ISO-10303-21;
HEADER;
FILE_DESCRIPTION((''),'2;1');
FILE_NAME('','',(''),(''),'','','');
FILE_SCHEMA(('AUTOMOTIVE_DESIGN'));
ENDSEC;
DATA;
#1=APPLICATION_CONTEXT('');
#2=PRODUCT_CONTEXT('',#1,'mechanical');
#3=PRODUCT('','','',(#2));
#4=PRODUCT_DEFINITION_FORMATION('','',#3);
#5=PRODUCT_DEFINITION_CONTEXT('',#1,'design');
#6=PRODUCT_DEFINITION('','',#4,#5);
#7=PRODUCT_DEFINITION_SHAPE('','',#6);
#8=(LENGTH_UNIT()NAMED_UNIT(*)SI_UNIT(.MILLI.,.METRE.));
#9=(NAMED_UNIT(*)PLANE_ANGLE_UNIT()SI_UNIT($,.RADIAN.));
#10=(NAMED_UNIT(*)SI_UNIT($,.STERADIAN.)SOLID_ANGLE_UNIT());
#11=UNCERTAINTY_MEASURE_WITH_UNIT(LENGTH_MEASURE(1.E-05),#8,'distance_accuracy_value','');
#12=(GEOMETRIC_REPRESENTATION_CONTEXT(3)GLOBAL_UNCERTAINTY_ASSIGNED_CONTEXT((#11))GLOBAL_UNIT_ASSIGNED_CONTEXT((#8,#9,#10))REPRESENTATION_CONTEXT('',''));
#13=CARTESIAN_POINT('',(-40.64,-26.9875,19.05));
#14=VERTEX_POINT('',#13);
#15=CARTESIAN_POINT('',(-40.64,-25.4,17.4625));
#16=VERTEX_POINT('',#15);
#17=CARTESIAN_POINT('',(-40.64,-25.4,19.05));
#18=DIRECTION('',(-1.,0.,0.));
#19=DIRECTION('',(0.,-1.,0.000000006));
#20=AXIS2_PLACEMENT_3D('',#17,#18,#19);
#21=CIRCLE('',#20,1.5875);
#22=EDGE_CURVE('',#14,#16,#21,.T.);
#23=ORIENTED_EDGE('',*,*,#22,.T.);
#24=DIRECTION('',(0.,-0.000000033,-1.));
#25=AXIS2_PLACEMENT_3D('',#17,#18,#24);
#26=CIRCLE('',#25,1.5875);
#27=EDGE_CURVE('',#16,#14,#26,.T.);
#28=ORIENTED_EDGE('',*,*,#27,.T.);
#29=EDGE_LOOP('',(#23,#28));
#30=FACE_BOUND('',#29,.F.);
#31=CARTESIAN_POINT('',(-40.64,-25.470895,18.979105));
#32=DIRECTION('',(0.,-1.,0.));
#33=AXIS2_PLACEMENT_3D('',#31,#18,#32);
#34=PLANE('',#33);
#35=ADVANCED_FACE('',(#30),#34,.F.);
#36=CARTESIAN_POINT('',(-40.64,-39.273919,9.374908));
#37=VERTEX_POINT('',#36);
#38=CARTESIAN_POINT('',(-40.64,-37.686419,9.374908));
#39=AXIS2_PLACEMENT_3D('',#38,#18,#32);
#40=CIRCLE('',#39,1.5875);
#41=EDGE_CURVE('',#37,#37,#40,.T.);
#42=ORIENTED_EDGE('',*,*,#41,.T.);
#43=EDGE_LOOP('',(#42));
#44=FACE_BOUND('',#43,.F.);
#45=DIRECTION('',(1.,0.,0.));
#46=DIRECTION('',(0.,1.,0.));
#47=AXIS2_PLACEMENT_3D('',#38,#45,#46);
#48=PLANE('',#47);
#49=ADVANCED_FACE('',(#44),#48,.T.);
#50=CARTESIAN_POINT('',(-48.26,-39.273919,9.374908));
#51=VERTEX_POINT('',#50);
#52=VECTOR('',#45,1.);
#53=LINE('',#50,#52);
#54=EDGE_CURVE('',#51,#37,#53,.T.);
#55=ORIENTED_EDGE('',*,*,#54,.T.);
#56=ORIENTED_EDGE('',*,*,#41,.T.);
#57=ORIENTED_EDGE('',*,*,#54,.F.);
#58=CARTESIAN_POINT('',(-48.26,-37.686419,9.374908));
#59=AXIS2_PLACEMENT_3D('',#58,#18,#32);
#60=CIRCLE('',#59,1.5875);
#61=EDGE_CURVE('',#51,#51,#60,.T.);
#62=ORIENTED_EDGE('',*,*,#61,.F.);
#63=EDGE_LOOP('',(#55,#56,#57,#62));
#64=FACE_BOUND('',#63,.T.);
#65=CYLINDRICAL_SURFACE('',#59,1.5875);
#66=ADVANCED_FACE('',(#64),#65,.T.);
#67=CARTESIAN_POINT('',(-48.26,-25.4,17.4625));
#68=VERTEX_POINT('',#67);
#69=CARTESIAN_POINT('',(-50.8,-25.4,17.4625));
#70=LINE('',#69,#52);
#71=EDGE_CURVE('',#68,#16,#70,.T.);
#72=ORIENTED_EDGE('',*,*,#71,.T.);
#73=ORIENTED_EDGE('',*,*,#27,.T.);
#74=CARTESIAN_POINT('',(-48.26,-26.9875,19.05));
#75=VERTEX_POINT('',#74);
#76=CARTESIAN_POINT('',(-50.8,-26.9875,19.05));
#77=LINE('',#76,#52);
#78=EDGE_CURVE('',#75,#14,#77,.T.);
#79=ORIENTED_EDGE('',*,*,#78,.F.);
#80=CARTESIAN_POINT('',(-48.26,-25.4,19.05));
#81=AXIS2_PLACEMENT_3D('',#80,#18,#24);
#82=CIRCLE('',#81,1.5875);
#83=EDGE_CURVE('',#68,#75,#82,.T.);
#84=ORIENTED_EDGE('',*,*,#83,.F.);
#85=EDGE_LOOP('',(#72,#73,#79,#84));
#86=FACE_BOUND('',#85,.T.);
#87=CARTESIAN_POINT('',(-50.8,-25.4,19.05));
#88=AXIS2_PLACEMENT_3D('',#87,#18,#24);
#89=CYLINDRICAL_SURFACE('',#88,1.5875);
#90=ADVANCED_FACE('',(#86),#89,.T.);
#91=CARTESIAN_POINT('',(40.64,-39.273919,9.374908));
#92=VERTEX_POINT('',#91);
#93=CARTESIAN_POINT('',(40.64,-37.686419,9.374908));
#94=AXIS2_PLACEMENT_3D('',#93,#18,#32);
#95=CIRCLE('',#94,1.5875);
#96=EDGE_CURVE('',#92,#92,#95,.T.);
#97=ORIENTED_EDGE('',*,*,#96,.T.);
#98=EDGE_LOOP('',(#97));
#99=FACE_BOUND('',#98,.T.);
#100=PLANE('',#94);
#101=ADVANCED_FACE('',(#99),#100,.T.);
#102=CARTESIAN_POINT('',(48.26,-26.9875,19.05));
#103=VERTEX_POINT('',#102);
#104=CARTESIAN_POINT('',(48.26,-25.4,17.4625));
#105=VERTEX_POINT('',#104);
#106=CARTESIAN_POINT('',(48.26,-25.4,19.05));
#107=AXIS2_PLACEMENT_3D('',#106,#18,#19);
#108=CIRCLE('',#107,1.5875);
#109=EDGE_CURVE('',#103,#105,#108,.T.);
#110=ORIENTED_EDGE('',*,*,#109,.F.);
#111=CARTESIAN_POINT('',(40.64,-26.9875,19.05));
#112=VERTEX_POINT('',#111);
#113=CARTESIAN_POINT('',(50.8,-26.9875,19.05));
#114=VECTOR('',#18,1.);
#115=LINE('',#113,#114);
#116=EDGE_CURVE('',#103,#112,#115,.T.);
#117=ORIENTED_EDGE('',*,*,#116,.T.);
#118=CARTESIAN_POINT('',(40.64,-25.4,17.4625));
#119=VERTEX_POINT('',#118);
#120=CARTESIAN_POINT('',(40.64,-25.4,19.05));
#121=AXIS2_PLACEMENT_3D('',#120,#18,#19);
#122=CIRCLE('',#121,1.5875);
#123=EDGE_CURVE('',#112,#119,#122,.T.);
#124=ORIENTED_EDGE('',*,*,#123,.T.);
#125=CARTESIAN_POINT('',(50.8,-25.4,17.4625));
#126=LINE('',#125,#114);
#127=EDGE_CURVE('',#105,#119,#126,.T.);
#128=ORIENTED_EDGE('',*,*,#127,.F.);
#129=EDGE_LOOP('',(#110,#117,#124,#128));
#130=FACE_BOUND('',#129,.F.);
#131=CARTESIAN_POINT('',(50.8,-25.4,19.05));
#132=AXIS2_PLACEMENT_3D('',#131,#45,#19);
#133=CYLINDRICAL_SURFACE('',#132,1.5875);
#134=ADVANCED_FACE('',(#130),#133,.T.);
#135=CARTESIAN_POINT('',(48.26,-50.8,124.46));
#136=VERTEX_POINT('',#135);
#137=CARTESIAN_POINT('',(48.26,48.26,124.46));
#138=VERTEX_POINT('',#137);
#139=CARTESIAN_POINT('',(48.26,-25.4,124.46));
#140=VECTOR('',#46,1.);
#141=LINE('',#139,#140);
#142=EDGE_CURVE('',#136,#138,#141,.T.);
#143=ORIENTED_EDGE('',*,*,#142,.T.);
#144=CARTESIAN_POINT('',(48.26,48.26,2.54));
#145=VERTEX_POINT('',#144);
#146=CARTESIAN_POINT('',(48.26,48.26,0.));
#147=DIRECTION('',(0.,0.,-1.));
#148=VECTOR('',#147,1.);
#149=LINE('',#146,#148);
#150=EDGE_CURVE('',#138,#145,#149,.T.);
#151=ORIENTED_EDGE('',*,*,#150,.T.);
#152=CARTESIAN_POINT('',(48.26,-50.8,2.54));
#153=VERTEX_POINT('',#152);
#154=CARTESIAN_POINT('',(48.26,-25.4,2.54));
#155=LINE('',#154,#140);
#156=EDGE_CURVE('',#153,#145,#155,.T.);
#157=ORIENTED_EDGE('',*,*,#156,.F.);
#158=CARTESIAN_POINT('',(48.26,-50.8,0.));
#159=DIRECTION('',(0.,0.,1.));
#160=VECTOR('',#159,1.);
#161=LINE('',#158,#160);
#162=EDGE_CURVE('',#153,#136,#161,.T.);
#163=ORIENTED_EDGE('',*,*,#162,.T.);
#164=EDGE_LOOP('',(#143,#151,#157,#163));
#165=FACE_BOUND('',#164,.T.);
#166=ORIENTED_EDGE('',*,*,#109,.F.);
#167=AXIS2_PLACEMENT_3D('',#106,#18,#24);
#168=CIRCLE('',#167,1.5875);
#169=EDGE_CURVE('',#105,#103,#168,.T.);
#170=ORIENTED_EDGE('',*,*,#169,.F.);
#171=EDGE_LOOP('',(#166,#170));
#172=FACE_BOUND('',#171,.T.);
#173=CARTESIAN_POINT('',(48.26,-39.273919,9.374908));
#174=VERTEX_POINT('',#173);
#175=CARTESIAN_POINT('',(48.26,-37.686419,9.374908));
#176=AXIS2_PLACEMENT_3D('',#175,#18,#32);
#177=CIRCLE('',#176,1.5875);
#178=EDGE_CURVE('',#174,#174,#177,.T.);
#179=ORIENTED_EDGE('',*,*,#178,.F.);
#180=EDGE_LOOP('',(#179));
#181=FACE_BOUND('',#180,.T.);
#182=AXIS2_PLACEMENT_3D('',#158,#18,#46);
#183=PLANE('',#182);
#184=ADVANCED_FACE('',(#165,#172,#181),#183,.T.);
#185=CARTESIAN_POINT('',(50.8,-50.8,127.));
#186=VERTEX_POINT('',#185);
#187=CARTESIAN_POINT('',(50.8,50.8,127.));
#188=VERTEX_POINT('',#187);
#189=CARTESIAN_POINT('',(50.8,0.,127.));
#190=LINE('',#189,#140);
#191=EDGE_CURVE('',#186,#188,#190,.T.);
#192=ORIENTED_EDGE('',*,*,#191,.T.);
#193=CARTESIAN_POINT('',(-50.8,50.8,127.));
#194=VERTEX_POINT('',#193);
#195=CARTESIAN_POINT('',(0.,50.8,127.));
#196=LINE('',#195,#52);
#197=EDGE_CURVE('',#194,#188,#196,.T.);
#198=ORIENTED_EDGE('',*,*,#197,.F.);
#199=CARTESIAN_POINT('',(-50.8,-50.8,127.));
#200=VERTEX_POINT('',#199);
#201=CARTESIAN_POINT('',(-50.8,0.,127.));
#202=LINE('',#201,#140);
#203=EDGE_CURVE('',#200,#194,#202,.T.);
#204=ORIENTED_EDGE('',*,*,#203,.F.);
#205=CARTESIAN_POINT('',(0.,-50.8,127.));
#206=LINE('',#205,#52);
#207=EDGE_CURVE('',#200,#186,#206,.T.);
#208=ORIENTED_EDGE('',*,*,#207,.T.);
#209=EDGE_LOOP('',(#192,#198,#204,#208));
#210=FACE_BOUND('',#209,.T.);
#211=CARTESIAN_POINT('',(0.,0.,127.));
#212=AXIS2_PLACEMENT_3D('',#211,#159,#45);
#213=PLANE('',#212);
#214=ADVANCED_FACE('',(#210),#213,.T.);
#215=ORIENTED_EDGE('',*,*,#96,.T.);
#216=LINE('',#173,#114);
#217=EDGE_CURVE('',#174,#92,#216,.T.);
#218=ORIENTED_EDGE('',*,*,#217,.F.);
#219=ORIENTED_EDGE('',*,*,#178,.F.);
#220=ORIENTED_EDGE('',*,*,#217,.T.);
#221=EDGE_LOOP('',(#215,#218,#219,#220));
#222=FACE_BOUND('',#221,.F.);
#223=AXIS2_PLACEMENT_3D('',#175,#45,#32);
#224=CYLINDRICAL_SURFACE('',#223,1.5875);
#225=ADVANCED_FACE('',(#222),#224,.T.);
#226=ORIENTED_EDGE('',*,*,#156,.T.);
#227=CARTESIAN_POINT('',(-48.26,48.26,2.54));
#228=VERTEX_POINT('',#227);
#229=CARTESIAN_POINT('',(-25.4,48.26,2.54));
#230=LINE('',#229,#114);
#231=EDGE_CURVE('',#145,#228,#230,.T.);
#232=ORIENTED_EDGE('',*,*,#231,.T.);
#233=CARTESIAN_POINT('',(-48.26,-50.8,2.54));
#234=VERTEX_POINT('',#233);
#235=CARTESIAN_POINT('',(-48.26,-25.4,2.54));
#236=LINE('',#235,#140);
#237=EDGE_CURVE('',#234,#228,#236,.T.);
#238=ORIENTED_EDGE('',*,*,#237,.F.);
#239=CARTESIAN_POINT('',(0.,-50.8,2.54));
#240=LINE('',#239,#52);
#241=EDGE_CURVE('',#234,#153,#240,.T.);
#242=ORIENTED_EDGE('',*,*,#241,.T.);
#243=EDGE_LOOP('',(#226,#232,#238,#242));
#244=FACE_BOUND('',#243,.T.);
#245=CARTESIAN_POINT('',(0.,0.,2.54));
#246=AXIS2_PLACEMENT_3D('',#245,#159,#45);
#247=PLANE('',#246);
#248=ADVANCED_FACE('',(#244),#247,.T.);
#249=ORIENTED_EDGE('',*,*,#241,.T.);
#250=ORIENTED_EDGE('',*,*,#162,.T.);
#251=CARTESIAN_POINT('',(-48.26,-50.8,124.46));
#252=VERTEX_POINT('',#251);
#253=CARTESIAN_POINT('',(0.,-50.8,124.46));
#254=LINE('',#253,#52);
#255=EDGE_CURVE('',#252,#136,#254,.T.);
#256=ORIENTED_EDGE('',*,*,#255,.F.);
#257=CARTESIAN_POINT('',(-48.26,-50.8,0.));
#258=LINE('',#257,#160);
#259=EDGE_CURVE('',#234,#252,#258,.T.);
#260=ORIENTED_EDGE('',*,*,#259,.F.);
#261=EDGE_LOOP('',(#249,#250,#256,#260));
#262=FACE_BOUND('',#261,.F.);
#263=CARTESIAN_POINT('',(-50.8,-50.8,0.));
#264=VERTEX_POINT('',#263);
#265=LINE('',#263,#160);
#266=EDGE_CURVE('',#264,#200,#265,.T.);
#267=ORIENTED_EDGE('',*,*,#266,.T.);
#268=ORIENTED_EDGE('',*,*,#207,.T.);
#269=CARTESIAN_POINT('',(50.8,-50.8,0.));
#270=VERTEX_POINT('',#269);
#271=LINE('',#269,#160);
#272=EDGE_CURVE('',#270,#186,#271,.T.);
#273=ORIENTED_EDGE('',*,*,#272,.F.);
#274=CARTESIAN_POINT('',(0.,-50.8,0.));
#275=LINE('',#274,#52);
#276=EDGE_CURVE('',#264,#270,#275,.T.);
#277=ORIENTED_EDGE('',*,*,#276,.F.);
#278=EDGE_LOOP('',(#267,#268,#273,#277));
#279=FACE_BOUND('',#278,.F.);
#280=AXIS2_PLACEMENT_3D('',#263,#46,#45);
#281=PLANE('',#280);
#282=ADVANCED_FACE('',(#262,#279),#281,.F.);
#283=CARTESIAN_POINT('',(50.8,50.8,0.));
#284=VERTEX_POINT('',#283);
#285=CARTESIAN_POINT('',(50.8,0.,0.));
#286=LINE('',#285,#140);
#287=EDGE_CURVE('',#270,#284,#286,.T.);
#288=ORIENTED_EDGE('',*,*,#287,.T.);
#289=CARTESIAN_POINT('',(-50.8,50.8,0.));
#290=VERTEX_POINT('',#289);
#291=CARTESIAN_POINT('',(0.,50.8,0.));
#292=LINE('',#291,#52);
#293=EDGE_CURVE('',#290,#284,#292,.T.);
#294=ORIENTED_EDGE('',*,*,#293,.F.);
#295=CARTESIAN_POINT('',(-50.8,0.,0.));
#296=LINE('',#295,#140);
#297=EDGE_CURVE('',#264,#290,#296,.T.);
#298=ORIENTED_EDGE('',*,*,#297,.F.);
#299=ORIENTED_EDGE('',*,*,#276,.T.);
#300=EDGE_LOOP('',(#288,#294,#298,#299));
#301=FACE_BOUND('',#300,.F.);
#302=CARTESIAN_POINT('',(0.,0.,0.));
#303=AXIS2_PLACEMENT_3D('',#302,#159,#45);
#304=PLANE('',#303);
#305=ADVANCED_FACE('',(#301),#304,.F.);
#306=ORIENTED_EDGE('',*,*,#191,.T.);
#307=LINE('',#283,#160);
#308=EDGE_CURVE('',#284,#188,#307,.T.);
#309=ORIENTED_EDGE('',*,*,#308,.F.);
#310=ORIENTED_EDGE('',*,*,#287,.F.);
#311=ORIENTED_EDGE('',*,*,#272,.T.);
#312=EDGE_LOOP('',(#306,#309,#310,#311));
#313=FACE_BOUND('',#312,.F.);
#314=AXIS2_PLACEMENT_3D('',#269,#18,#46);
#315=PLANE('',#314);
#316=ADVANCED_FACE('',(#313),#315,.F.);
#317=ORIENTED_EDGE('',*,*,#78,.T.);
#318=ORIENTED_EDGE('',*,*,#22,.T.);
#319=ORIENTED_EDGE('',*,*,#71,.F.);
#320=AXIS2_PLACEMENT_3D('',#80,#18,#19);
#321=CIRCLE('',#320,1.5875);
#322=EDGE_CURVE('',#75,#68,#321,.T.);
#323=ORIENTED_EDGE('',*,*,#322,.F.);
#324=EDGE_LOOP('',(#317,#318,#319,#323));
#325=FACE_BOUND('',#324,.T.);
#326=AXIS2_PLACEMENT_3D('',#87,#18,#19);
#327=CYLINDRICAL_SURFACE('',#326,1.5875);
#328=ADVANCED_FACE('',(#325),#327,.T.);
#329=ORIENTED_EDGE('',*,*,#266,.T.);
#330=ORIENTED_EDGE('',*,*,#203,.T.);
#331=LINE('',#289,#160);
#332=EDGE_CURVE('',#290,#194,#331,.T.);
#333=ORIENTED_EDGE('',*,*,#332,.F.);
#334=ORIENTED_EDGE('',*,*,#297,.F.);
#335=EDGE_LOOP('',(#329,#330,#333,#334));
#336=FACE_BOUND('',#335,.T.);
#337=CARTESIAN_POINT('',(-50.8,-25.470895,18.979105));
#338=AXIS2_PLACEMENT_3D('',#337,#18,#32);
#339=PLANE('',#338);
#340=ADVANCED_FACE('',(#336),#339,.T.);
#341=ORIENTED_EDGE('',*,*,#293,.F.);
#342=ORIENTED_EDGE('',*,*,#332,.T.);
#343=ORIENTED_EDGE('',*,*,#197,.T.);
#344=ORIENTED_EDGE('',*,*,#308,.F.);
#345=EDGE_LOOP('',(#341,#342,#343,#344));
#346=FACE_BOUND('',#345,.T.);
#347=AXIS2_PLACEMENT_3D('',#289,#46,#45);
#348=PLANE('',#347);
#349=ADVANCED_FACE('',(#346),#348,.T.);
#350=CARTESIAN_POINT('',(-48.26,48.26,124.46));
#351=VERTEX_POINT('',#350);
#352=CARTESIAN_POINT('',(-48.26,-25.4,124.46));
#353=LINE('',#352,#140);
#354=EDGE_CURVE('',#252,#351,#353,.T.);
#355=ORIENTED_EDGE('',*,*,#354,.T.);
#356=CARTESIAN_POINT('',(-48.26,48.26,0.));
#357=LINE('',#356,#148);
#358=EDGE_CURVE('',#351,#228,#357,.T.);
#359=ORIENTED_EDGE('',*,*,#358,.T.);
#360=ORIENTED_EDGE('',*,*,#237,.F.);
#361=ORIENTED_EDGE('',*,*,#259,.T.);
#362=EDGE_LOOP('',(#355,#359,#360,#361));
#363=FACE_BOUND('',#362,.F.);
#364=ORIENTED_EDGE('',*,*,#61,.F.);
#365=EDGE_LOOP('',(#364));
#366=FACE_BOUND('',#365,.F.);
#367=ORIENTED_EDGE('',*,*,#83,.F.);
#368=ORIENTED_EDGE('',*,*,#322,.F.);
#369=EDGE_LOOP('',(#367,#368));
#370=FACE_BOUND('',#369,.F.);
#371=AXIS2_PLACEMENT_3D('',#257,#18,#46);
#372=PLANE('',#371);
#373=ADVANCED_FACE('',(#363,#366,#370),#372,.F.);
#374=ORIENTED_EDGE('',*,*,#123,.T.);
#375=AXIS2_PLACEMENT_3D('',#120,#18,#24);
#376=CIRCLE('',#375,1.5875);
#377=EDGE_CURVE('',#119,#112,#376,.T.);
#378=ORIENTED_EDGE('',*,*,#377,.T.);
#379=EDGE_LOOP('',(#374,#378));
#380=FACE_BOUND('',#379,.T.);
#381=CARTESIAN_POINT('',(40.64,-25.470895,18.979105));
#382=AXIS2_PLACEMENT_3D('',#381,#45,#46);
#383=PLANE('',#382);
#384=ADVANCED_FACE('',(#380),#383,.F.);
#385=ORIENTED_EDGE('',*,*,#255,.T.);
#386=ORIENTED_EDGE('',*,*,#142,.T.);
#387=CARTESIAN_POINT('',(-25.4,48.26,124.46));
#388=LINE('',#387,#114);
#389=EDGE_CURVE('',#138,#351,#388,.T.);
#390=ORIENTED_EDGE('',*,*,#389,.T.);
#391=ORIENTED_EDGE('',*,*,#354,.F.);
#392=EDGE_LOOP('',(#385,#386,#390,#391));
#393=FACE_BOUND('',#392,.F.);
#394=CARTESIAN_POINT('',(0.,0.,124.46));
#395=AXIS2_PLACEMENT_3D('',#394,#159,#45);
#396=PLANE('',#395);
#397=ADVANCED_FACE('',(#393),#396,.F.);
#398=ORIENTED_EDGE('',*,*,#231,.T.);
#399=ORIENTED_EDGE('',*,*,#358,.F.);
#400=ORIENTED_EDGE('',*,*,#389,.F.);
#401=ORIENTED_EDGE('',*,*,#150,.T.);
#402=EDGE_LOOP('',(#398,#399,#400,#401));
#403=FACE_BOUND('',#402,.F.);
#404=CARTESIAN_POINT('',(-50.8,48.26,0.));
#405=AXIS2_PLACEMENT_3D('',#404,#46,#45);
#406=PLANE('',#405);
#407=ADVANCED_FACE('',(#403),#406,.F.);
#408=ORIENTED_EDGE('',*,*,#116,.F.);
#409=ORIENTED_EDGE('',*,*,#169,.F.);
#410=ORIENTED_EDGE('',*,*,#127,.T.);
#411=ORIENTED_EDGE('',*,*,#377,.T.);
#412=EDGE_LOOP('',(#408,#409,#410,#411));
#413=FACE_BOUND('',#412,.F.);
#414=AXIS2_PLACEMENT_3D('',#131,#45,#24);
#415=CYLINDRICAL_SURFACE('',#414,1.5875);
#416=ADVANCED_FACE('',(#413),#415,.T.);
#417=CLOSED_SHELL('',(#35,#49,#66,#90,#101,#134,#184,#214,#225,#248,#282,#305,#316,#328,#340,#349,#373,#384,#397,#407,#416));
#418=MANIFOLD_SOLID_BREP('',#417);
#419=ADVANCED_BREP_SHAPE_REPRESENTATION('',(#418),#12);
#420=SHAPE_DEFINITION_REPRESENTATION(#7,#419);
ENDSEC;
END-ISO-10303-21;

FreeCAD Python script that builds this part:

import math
import FreeCAD as App
import Part
import Sketcher
Q = App.Units.Quantity


def faces_at(feature, points):
    """Names of the faces that lie closest to the given points."""
    faces = feature.Shape.Faces
    near = lambda p: min(range(len(faces)), key=lambda i: faces[i].distToShape(Part.Vertex(*p))[0])
    return sorted({f"Face{near(p) + 1}" for p in points})

doc = App.newDocument("Part")
body = doc.addObject("PartDesign::Body", "Body")

# Sketch on XY plane
sketch1 = doc.addObject("Sketcher::SketchObject", "Sketch")
body.addObject(sketch1)
sketch1.AttachmentSupport = (doc.XY_Plane, [""])
sketch1.MapMode = "FlatFace"
sketch1.addGeometry([
    Part.LineSegment(App.Vector(-51, 51, 0), App.Vector(-51, -51, 0)),
    Part.LineSegment(App.Vector(-51, -51, 0), App.Vector(51, -51, 0)),
    Part.LineSegment(App.Vector(51, -51, 0), App.Vector(51, 51, 0)),
    Part.LineSegment(App.Vector(51, 51, 0), App.Vector(-51, 51, 0)),
], False)
sketch1.addConstraint([
    Sketcher.Constraint("Coincident", 0, 2, 1, 1),
    Sketcher.Constraint("Coincident", 1, 2, 2, 1),
    Sketcher.Constraint("Coincident", 2, 2, 3, 1),
    Sketcher.Constraint("Coincident", 3, 2, 0, 1),
    Sketcher.Constraint("Vertical", 0),
    Sketcher.Constraint("Horizontal", 1),
    Sketcher.Constraint("Vertical", 2),
    Sketcher.Constraint("Horizontal", 3),
    Sketcher.Constraint("Symmetric", 0, 2, 2, 2, -1, 1),
    Sketcher.Constraint("Equal", 3, 0),
    Sketcher.Constraint("DistanceX", 1, 1, 1, 2, Q("4 in")),
])
pad1 = doc.addObject("PartDesign::Pad", "Pad")
body.addObject(pad1)
pad1.Profile = sketch1
pad1.Length = Q("5 in")
doc.recompute()

thickness = doc.addObject("PartDesign::Thickness", "Thickness")
body.addObject(thickness)
thickness.Base = (pad1, faces_at(pad1, [(0, -50.8, 63.5)]))
thickness.Value = Q("0.1 in")
thickness.Reversed = True
thickness.Join = "Arc"

# Sketch on YZ plane
sketch2 = doc.addObject("Sketcher::SketchObject", "Sketch001")
body.addObject(sketch2)
sketch2.AttachmentSupport = (doc.YZ_Plane, [""])
sketch2.MapMode = "FlatFace"
sketch2.AttachmentOffset = App.Placement(App.Vector(0, 0, 1.9 * 25.4), App.Rotation())
sketch2.addGeometry(Part.Circle(App.Vector(-37.7, 9.4, 0), App.Vector(0, 0, 1), 1.6), False)
sketch2.addConstraint([
    Sketcher.Constraint("Diameter", 0, Q("0.125 in")),
    Sketcher.Constraint("DistanceX", 0, 3, -1, 1, Q("37.686419 mm")),
    Sketcher.Constraint("DistanceY", -1, 1, 0, 3, Q("9.374908 mm")),
])
pad2 = doc.addObject("PartDesign::Pad", "Pad001")
body.addObject(pad2)
pad2.Profile = sketch2
pad2.Length = Q("0.3 in")
pad2.Reversed = True
body2 = doc.addObject("PartDesign::Body", "Body001")
doc.recompute()

body2.BaseFeature = body
doc.recompute()

mirroring = doc.addObject("Part::Mirroring", "Mirroring")
mirroring.Source = body
mirroring.Base = App.Vector(0, 0, 0)
mirroring.Normal = App.Vector(1, 0, 0)
body3 = doc.addObject("PartDesign::Body", "Body002")
body3.BaseFeature = mirroring
boolean = doc.addObject("PartDesign::Boolean", "Boolean")
body2.addObject(boolean)
boolean.Type = "Fuse"
boolean.addObjects([body3])
doc.recompute()
body4 = doc.addObject("PartDesign::Body", "Body003")
doc.recompute()

body4.BaseFeature = body2
doc.recompute()

mirroring2 = doc.addObject("Part::Mirroring", "Mirroring001")
mirroring2.Source = body2
mirroring2.Base = App.Vector(0, 0, 0)
mirroring2.Normal = App.Vector(1, 0, 0)
body5 = doc.addObject("PartDesign::Body", "Body004")
body5.BaseFeature = mirroring2
boolean2 = doc.addObject("PartDesign::Boolean", "Boolean001")
body4.addObject(boolean2)
boolean2.Type = "Fuse"
boolean2.addObjects([body5])
doc.recompute()

# Sketch on YZ plane
sketch3 = doc.addObject("Sketcher::SketchObject", "Sketch002")
body4.addObject(sketch3)
sketch3.AttachmentSupport = (doc.getObject("YZ_Plane003"), [""])
sketch3.MapMode = "FlatFace"
sketch3.AttachmentOffset = App.Placement(App.Vector(0, 0, -2 * 25.4), App.Rotation())
sketch3.addGeometry([
    Part.ArcOfCircle(Part.Circle(App.Vector(-25.4, 19.1, 0), App.Vector(0, 0, 1), 1.6), math.radians(-180), math.radians(-90)),
    Part.ArcOfCircle(Part.Circle(App.Vector(-25.4, 19, 0), App.Vector(0, 0, 1), 1.6), math.radians(-90), math.radians(180)),
], False)
sketch3.addConstraint([
    Sketcher.Constraint("Tangent", 0, 1, 1, 2),
    Sketcher.Constraint("Coincident", 1, 1, 0, 2),
    Sketcher.Constraint("Horizontal", 1, 3, 0, 1),
    Sketcher.Constraint("Vertical", 0, 3, 1, 1),
    Sketcher.Constraint("DistanceX", 0, 3, -1, 1, Q("1 in")),
    Sketcher.Constraint("Radius", 0, Q("0.0625 in")),
    Sketcher.Constraint("DistanceY", -1, 1, 0, 3, Q("0.75 in")),
])
pad3 = doc.addObject("PartDesign::Pad", "Pad002")
body4.addObject(pad3)
pad3.Profile = sketch3
pad3.Length = Q("0.4 in")
body6 = doc.addObject("PartDesign::Body", "Body005")
doc.recompute()

body6.BaseFeature = body4
doc.recompute()

mirroring3 = doc.addObject("Part::Mirroring", "Mirroring002")
mirroring3.Source = body4
mirroring3.Base = App.Vector(0, 0, 0)
mirroring3.Normal = App.Vector(1, 0, 0)
body7 = doc.addObject("PartDesign::Body", "Body006")
body7.BaseFeature = mirroring3
boolean3 = doc.addObject("PartDesign::Boolean", "Boolean002")
body6.addObject(boolean3)
boolean3.Type = "Fuse"
boolean3.addObjects([body7])
doc.recompute()
mirroring.Visibility = False
mirroring2.Visibility = False
mirroring3.Visibility = False

doc.recompute()
